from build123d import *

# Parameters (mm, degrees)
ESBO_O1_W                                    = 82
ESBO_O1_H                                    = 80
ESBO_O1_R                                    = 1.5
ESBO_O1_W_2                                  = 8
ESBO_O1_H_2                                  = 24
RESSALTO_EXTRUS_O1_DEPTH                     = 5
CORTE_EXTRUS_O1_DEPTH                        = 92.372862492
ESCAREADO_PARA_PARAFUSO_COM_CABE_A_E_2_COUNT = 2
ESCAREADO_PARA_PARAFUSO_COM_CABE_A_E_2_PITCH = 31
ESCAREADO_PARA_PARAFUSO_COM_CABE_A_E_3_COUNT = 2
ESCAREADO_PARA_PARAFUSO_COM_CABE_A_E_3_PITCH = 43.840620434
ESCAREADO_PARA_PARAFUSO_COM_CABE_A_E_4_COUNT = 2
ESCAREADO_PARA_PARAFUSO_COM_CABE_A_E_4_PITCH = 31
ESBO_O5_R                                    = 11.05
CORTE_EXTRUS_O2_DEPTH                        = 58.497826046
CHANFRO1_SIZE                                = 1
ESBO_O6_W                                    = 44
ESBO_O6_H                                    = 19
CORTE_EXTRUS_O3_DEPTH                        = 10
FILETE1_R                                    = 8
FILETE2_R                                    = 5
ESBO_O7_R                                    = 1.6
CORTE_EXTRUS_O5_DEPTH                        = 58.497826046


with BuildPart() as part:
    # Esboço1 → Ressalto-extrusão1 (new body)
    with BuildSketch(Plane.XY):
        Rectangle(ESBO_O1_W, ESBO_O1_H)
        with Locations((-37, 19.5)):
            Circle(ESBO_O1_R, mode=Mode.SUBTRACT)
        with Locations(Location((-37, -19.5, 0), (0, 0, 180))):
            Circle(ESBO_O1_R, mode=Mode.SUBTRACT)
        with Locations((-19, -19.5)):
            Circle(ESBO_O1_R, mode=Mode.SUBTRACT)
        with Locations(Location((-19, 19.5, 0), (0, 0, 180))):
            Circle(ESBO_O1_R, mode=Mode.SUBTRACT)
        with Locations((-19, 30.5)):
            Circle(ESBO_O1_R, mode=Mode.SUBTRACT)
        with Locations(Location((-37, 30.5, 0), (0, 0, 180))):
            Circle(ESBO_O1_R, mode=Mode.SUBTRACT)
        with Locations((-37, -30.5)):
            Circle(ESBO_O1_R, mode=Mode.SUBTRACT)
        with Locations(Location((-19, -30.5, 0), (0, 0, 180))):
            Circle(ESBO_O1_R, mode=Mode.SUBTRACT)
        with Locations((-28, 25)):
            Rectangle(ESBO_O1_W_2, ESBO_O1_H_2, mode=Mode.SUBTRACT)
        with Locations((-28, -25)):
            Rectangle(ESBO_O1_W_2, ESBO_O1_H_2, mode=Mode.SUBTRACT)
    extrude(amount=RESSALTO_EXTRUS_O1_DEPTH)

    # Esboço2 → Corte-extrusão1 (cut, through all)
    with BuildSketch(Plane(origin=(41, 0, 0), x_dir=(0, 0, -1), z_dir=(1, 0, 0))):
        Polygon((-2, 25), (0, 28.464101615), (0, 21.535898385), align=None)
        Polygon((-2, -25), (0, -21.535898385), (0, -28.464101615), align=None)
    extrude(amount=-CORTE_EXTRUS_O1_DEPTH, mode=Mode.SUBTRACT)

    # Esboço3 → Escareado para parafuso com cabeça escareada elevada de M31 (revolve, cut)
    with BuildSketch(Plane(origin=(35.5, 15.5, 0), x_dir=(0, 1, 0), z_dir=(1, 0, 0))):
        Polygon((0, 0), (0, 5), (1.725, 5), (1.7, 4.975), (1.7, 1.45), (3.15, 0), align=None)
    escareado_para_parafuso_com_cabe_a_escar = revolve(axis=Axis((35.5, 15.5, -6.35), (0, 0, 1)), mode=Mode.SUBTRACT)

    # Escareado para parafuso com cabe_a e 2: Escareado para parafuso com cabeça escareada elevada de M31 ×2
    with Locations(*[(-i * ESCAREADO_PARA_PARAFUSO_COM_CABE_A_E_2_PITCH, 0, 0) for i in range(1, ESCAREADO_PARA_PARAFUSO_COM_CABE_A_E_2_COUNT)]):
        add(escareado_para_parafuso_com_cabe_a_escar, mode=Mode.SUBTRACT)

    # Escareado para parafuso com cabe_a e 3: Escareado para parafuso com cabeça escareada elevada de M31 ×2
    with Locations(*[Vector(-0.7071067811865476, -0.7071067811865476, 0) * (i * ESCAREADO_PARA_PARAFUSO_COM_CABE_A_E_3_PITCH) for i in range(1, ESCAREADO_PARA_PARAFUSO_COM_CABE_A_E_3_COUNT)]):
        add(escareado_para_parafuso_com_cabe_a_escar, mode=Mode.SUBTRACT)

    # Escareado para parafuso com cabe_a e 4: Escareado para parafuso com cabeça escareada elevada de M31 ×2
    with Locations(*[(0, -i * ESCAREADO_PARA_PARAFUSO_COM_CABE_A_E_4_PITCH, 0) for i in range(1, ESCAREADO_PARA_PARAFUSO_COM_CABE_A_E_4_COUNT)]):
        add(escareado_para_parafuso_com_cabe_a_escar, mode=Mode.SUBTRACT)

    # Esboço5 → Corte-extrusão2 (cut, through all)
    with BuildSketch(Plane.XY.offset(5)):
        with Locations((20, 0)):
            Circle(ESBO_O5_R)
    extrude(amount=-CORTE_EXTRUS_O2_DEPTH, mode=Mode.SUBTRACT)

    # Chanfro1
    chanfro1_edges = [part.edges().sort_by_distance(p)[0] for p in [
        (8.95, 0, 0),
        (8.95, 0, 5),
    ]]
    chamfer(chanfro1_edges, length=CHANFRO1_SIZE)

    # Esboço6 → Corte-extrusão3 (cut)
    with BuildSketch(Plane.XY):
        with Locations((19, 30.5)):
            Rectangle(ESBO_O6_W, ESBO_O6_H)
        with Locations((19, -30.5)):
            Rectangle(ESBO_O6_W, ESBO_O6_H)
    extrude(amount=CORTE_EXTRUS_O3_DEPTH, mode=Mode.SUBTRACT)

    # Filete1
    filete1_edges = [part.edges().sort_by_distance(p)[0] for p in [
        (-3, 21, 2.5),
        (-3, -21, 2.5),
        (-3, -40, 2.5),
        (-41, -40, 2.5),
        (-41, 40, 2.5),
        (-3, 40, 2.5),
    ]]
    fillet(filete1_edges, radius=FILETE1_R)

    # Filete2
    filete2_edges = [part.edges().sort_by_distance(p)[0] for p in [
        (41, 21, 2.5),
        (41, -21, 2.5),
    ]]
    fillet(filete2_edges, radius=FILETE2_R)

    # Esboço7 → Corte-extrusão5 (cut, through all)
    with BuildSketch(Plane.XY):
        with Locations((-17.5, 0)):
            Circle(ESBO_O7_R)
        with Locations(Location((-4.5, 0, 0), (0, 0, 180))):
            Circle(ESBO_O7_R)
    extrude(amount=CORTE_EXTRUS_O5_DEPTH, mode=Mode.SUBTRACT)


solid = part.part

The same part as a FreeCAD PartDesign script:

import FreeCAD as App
import Part
import Sketcher
from FreeCAD import Vector
Q = App.Units.Quantity


def edges_at(feature, points):
    """Names of the edges that pass closest to the given points."""
    edges = feature.Shape.Edges
    near = lambda p: min(range(len(edges)), key=lambda i: edges[i].distToShape(Part.Vertex(*p))[0])
    return sorted({f"Edge{near(p) + 1}" for p in points})

doc = App.newDocument("Part")
body = doc.addObject("PartDesign::Body", "Body")

# Sketch on XY plane
sketch1 = doc.addObject("Sketcher::SketchObject", "Sketch")
body.addObject(sketch1)
sketch1.AttachmentSupport = (doc.XY_Plane, [""])
sketch1.MapMode = "FlatFace"
sketch1.addGeometry([
    Part.LineSegment(Vector(-41, 40, 0), Vector(-41, -40, 0)),  # 0
    Part.LineSegment(Vector(-41, -40, 0), Vector(41, -40, 0)),  # 1
    Part.LineSegment(Vector(41, -40, 0), Vector(41, 40, 0)),  # 2
    Part.LineSegment(Vector(41, 40, 0), Vector(-41, 40, 0)),  # 3
    Part.Circle(Vector(-37, -30.5, 0), Vector(0, 0, 1), 1.5),  # 4
    Part.Circle(Vector(-37, -19.5, 0), Vector(0, 0, 1), 1.5),  # 5
    Part.LineSegment(Vector(-24, -37, 0), Vector(-32, -37, 0)),  # 6
    Part.LineSegment(Vector(-32, -37, 0), Vector(-32, -13, 0)),  # 7
    Part.LineSegment(Vector(-32, -13, 0), Vector(-24, -13, 0)),  # 8
    Part.LineSegment(Vector(-24, -13, 0), Vector(-24, -37, 0)),  # 9
    Part.Circle(Vector(-19, -30.5, 0), Vector(0, 0, 1), 1.5),  # 10
    Part.Circle(Vector(-19, -19.5, 0), Vector(0, 0, 1), 1.5),  # 11
    Part.Circle(Vector(-37, 19.5, 0), Vector(0, 0, 1), 1.5),  # 12
    Part.Circle(Vector(-37, 30.5, 0), Vector(0, 0, 1), 1.5),  # 13
    Part.LineSegment(Vector(-24, 13, 0), Vector(-32, 13, 0)),  # 14
    Part.LineSegment(Vector(-32, 13, 0), Vector(-32, 37, 0)),  # 15
    Part.LineSegment(Vector(-32, 37, 0), Vector(-24, 37, 0)),  # 16
    Part.LineSegment(Vector(-24, 37, 0), Vector(-24, 13, 0)),  # 17
    Part.Circle(Vector(-19, 19.5, 0), Vector(0, 0, 1), 1.5),  # 18
    Part.Circle(Vector(-19, 30.5, 0), Vector(0, 0, 1), 1.5),  # 19
], False)
sketch1.addConstraint([
    Sketcher.Constraint("Coincident", 0, 2, 1, 1),
    Sketcher.Constraint("Coincident", 1, 2, 2, 1),
    Sketcher.Constraint("Coincident", 2, 2, 3, 1),
    Sketcher.Constraint("Coincident", 3, 2, 0, 1),
    Sketcher.Constraint("Coincident", 6, 2, 7, 1),
    Sketcher.Constraint("Coincident", 7, 2, 8, 1),
    Sketcher.Constraint("Coincident", 8, 2, 9, 1),
    Sketcher.Constraint("Coincident", 9, 2, 6, 1),
    Sketcher.Constraint("Coincident", 14, 2, 15, 1),
    Sketcher.Constraint("Coincident", 15, 2, 16, 1),
    Sketcher.Constraint("Coincident", 16, 2, 17, 1),
    Sketcher.Constraint("Coincident", 17, 2, 14, 1),
    Sketcher.Constraint("Vertical", 0),
    Sketcher.Constraint("Horizontal", 1),
    Sketcher.Constraint("Vertical", 2),
    Sketcher.Constraint("Horizontal", 3),
    Sketcher.Constraint("Horizontal", 6),
    Sketcher.Constraint("Vertical", 7),
    Sketcher.Constraint("Horizontal", 8),
    Sketcher.Constraint("Vertical", 9),
    Sketcher.Constraint("Horizontal", 14),
    Sketcher.Constraint("Vertical", 15),
    Sketcher.Constraint("Horizontal", 16),
    Sketcher.Constraint("Vertical", 17),
    Sketcher.Constraint("Equal", 4, 5),
    Sketcher.Constraint("Equal", 5, 10),
    Sketcher.Constraint("Equal", 10, 11),
    Sketcher.Constraint("Equal", 11, 12),
    Sketcher.Constraint("Equal", 12, 13),
    Sketcher.Constraint("Equal", 13, 18),
    Sketcher.Constraint("Equal", 18, 19),
    Sketcher.Constraint("Symmetric", 0, 2, 2, 2, -1, 1),
    Sketcher.Constraint("Symmetric", 5, 3, 12, 3, -1),
    Sketcher.Constraint("Symmetric", 4, 3, 13, 3, -1),
    Sketcher.Constraint("Symmetric", 11, 3, 18, 3, -1),
    Sketcher.Constraint("Symmetric", 10, 3, 19, 3, -1),
    Sketcher.Constraint("Symmetric", 7, 2, 14, 2, -1),
    Sketcher.Constraint("Symmetric", 9, 2, 16, 2, -1),
    Sketcher.Constraint("Horizontal", 4, 3, 10, 3),
    Sketcher.Constraint("Horizontal", 5, 3, 11, 3),
    Sketcher.Constraint("Vertical", 4, 3, 5, 3),
    Sketcher.Constraint("Vertical", 10, 3, 11, 3),
    Sketcher.Constraint("Diameter", 4, 3.0),
    Sketcher.Constraint("DistanceX", 1, 1, 1, 2, 82.0),
    Sketcher.Constraint("DistanceX", 6, 2, 6, 1, 8.0),
    Sketcher.Constraint("DistanceY", 0, 2, 0, 1, 80.0),
    Sketcher.Constraint("DistanceY", 7, 1, 7, 2, 24.0),
    Sketcher.Constraint("DistanceX", 4, 3, -1, 1, 37.0),
    Sketcher.Constraint("DistanceX", 10, 3, -1, 1, 19.0),
    Sketcher.Constraint("DistanceX", 6, 2, -1, 1, 32.0),
    Sketcher.Constraint("DistanceY", 6, 2, -1, 1, 37.0),
    Sketcher.Constraint("DistanceY", 4, 3, 5, 3, 11.0),
    Sketcher.Constraint("DistanceY", 5, 3, 12, 3, 39.0),
])
pad1 = doc.addObject("PartDesign::Pad", "Pad")
body.addObject(pad1)
pad1.Profile = sketch1
pad1.Length = 5

# Sketch on YZ plane
sketch2 = doc.addObject("Sketcher::SketchObject", "Sketch001")
body.addObject(sketch2)
sketch2.AttachmentSupport = (doc.YZ_Plane, [""])
sketch2.MapMode = "FlatFace"
sketch2.AttachmentOffset = App.Placement(Vector(0, 0, 41), App.Rotation())
sketch2.addGeometry([
    Part.LineSegment(Vector(28.5, 0, 0), Vector(25, 2, 0)),  # 0
    Part.LineSegment(Vector(25, 2, 0), Vector(21.5, 0, 0)),  # 1
    Part.LineSegment(Vector(21.5, 0, 0), Vector(28.5, 0, 0)),  # 2
    Part.LineSegment(Vector(-21.5, 0, 0), Vector(-25, 2, 0)),  # 3
    Part.LineSegment(Vector(-25, 2, 0), Vector(-28.5, 0, 0)),  # 4
    Part.LineSegment(Vector(-28.5, 0, 0), Vector(-21.5, 0, 0)),  # 5
], False)
sketch2.addConstraint([
    Sketcher.Constraint("Coincident", 0, 2, 1, 1),
    Sketcher.Constraint("Coincident", 1, 2, 2, 1),
    Sketcher.Constraint("Coincident", 2, 2, 0, 1),
    Sketcher.Constraint("Coincident", 3, 2, 4, 1),
    Sketcher.Constraint("Coincident", 4, 2, 5, 1),
    Sketcher.Constraint("Coincident", 5, 2, 3, 1),
    Sketcher.Constraint("Horizontal", 2),
    Sketcher.Constraint("Horizontal", 5),
    Sketcher.Constraint("Symmetric", 2, 2, 4, 2, -1, 1),
    Sketcher.Constraint("Symmetric", 0, 2, 3, 2, -2),
    Sketcher.Constraint("Symmetric", 1, 2, 5, 2, -2),
    Sketcher.Constraint("Parallel", 0, 3),
    Sketcher.Constraint("Angle", 0, Q("150 deg")),
    Sketcher.Constraint("Distance", 0, 4.0),
    Sketcher.Constraint("DistanceX", -1, 1, 0, 2, 25.0),
])
pocket1 = doc.addObject("PartDesign::Pocket", "Pocket")
body.addObject(pocket1)
pocket1.Profile = sketch2
pocket1.Type = "ThroughAll"

# Sketch on YZ plane
sketch3 = doc.addObject("Sketcher::SketchObject", "Sketch002")
body.addObject(sketch3)
sketch3.AttachmentSupport = (doc.YZ_Plane, [""])
sketch3.MapMode = "FlatFace"
sketch3.AttachmentOffset = App.Placement(Vector(0, 0, 35.5), App.Rotation())
sketch3.addGeometry([
    Part.LineSegment(Vector(15.5, 5, 0), Vector(15.5, 0, 0)),  # 0
    Part.LineSegment(Vector(15.5, 0, 0), Vector(18.65, 0, 0)),  # 1
    Part.LineSegment(Vector(18.65, 0, 0), Vector(17.2, 1.45, 0)),  # 2
    Part.LineSegment(Vector(17.2, 1.45, 0), Vector(17.2, 4.975, 0)),  # 3
    Part.LineSegment(Vector(17.2, 4.975, 0), Vector(17.225, 5, 0)),  # 4
    Part.LineSegment(Vector(17.225, 5, 0), Vector(15.5, 5, 0)),  # 5
], False)
sketch3.addGeometry(Part.LineSegment(Vector(15.5, 0, 0), Vector(15.5, 5, 0)), True)  # axis
sketch3.addConstraint([
    Sketcher.Constraint("Coincident", 0, 2, 1, 1),
    Sketcher.Constraint("Coincident", 1, 2, 2, 1),
    Sketcher.Constraint("Coincident", 2, 2, 3, 1),
    Sketcher.Constraint("Coincident", 3, 2, 4, 1),
    Sketcher.Constraint("Coincident", 4, 2, 5, 1),
    Sketcher.Constraint("Coincident", 5, 2, 0, 1),
    Sketcher.Constraint("Vertical", 0),
    Sketcher.Constraint("Horizontal", 1),
    Sketcher.Constraint("Vertical", 3),
    Sketcher.Constraint("Horizontal", 5),
    Sketcher.Constraint("Vertical", 6),
    Sketcher.Constraint("Coincident", 6, 1, 0, 2),
    Sketcher.Constraint("PointOnObject", 0, 2, -1),
    Sketcher.Constraint("Perpendicular", 2, 4),
    Sketcher.Constraint("Horizontal", 4, 2, 6, 2),
    Sketcher.Constraint("DistanceY", 0, 2, 0, 1, 5.0),
    Sketcher.Constraint("Angle", 2, Q("135 deg")),
    Sketcher.Constraint("DistanceX", 1, 1, 1, 2, 3.15),
    Sketcher.Constraint("DistanceX", -1, 1, 0, 2, 15.5),
    Sketcher.Constraint("DistanceX", -1, 1, 2, 2, 17.2),
    Sketcher.Constraint("DistanceX", 5, 2, 5, 1, 1.725),
])
groove = doc.addObject("PartDesign::Groove", "Groove")
body.addObject(groove)
groove.Profile = sketch3
groove.ReferenceAxis = (sketch3, ["Axis0"])
groove.Angle = 360
doc.recompute()

linearpattern = doc.addObject("PartDesign::LinearPattern", "LinearPattern")
body.addObject(linearpattern)
linearpattern.Originals = [groove]
linearpattern.Direction = (doc.X_Axis, [""])
linearpattern.Mode = "offset"
linearpattern.Offset = 31
linearpattern.Occurrences = 2
linearpattern.Reversed = True
body.Tip = linearpattern
doc.recompute()

datumline = doc.addObject("PartDesign::Line", "DatumLine")
body.addObject(datumline)
datumline.Placement = App.Placement(Vector(0, 0, 0), App.Rotation(Vector(0, 0, 1), Vector(-0.707106781, -0.707106781, 0)))
linearpattern2 = doc.addObject("PartDesign::LinearPattern", "LinearPattern001")
body.addObject(linearpattern2)
linearpattern2.Originals = [groove]
linearpattern2.Direction = (datumline, [""])
linearpattern2.Mode = "offset"
linearpattern2.Offset = 43.84062
linearpattern2.Occurrences = 2
body.Tip = linearpattern2
doc.recompute()

linearpattern3 = doc.addObject("PartDesign::LinearPattern", "LinearPattern002")
body.addObject(linearpattern3)
linearpattern3.Originals = [groove]
linearpattern3.Direction = (doc.Y_Axis, [""])
linearpattern3.Mode = "offset"
linearpattern3.Offset = 31
linearpattern3.Occurrences = 2
linearpattern3.Reversed = True
body.Tip = linearpattern3

# Sketch on XY plane
sketch4 = doc.addObject("Sketcher::SketchObject", "Sketch003")
body.addObject(sketch4)
sketch4.AttachmentSupport = (doc.XY_Plane, [""])
sketch4.MapMode = "FlatFace"
sketch4.AttachmentOffset = App.Placement(Vector(0, 0, 5), App.Rotation())
sketch4.addGeometry(Part.Circle(Vector(20, 0, 0), Vector(0, 0, 1), 11), False)
sketch4.addConstraint([
    Sketcher.Constraint("PointOnObject", 0, 3, -1),
    Sketcher.Constraint("Diameter", 0, 22.1),
    Sketcher.Constraint("DistanceX", -1, 1, 0, 3, 20.0),
])
pocket2 = doc.addObject("PartDesign::Pocket", "Pocket001")
body.addObject(pocket2)
pocket2.Profile = sketch4
pocket2.Type = "ThroughAll"
doc.recompute()

chamfer = doc.addObject("PartDesign::Chamfer", "Chamfer")
body.addObject(chamfer)
chamfer.Base = (pocket2, edges_at(pocket2, [(8.95, 0, 0), (8.95, 0, 5)]))
chamfer.Size = 1

# Sketch on XY plane
sketch5 = doc.addObject("Sketcher::SketchObject", "Sketch004")
body.addObject(sketch5)
sketch5.AttachmentSupport = (doc.XY_Plane, [""])
sketch5.MapMode = "FlatFace"
sketch5.addGeometry([
    Part.LineSegment(Vector(-3, 40, 0), Vector(-3, 21, 0)),  # 0
    Part.LineSegment(Vector(-3, 21, 0), Vector(41, 21, 0)),  # 1
    Part.LineSegment(Vector(41, 21, 0), Vector(41, 40, 0)),  # 2
    Part.LineSegment(Vector(41, 40, 0), Vector(-3, 40, 0)),  # 3
    Part.LineSegment(Vector(-3, -21, 0), Vector(-3, -40, 0)),  # 4
    Part.LineSegment(Vector(-3, -40, 0), Vector(41, -40, 0)),  # 5
    Part.LineSegment(Vector(41, -40, 0), Vector(41, -21, 0)),  # 6
    Part.LineSegment(Vector(41, -21, 0), Vector(-3, -21, 0)),  # 7
], False)
sketch5.addConstraint([
    Sketcher.Constraint("Coincident", 0, 2, 1, 1),
    Sketcher.Constraint("Coincident", 1, 2, 2, 1),
    Sketcher.Constraint("Coincident", 2, 2, 3, 1),
    Sketcher.Constraint("Coincident", 3, 2, 0, 1),
    Sketcher.Constraint("Coincident", 4, 2, 5, 1),
    Sketcher.Constraint("Coincident", 5, 2, 6, 1),
    Sketcher.Constraint("Coincident", 6, 2, 7, 1),
    Sketcher.Constraint("Coincident", 7, 2, 4, 1),
    Sketcher.Constraint("Vertical", 0),
    Sketcher.Constraint("Horizontal", 1),
    Sketcher.Constraint("Vertical", 2),
    Sketcher.Constraint("Horizontal", 3),
    Sketcher.Constraint("Vertical", 4),
    Sketcher.Constraint("Horizontal", 5),
    Sketcher.Constraint("Vertical", 6),
    Sketcher.Constraint("Horizontal", 7),
    Sketcher.Constraint("Symmetric", 3, 2, 4, 2, -1),
    Sketcher.Constraint("Symmetric", 1, 2, 6, 2, -1),
    Sketcher.Constraint("DistanceX", 1, 1, 1, 2, 44.0),
    Sketcher.Constraint("DistanceY", 0, 2, 0, 1, 19.0),
    Sketcher.Constraint("DistanceX", 0, 2, -1, 1, 3.0),
    Sketcher.Constraint("DistanceY", -1, 1, 0, 2, 21.0),
])
pocket3 = doc.addObject("PartDesign::Pocket", "Pocket002")
body.addObject(pocket3)
pocket3.Profile = sketch5
pocket3.Length = 10
pocket3.Reversed = True
doc.recompute()

fillet = doc.addObject("PartDesign::Fillet", "Fillet")
body.addObject(fillet)
fillet.Base = (pocket3, edges_at(pocket3, [
    (-3, 21, 2.5),
    (-3, -21, 2.5),
    (-3, -40, 2.5),
    (-41, -40, 2.5),
    (-41, 40, 2.5),
    (-3, 40, 2.5),
]))
fillet.Radius = 8
doc.recompute()

fillet2 = doc.addObject("PartDesign::Fillet", "Fillet001")
body.addObject(fillet2)
fillet2.Base = (fillet, edges_at(fillet, [(41, 21, 2.5), (41, -21, 2.5)]))
fillet2.Radius = 5

# Sketch on XY plane
sketch6 = doc.addObject("Sketcher::SketchObject", "Sketch005")
body.addObject(sketch6)
sketch6.AttachmentSupport = (doc.XY_Plane, [""])
sketch6.MapMode = "FlatFace"
sketch6.addGeometry([
    Part.Circle(Vector(-17.5, 0, 0), Vector(0, 0, 1), 1.6),
    Part.Circle(Vector(-4.5, 0, 0), Vector(0, 0, 1), 1.6),
], False)
sketch6.addConstraint([
    Sketcher.Constraint("Equal", 0, 1),
    Sketcher.Constraint("PointOnObject", 0, 3, -1),
    Sketcher.Constraint("PointOnObject", 1, 3, -1),
    Sketcher.Constraint("Diameter", 0, 3.2),
    Sketcher.Constraint("DistanceX", 0, 3, 1, 3, 13.0),
    Sketcher.Constraint("DistanceX", 0, 3, -1, 1, 17.5),
])
pocket4 = doc.addObject("PartDesign::Pocket", "Pocket003")
body.addObject(pocket4)
pocket4.Profile = sketch6
pocket4.Type = "ThroughAll"
pocket4.Reversed = True

doc.recompute()
